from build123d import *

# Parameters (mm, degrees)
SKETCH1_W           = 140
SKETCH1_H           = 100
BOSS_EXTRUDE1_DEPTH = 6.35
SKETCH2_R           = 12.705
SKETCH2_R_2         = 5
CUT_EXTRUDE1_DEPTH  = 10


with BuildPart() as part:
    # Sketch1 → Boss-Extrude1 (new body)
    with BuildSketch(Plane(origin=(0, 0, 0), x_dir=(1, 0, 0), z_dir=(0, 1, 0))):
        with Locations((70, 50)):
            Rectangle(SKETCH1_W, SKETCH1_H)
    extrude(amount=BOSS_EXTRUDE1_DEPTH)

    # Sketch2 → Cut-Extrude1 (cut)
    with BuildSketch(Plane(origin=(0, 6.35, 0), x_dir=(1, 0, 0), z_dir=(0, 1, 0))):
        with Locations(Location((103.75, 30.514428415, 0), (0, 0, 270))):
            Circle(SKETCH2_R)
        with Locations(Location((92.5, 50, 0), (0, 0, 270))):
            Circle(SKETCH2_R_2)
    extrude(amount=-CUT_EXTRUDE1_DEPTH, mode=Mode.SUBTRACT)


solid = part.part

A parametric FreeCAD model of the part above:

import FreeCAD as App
import Part
import Sketcher

V = App.Vector
Q = App.Units.Quantity

doc = App.newDocument("Part")
body = doc.addObject("PartDesign::Body", "Body")

sketch1 = doc.addObject("Sketcher::SketchObject", "Sketch")
body.addObject(sketch1)
sketch1.AttachmentSupport = (doc.XZ_Plane, [""])
sketch1.MapMode = "FlatFace"
sketch1.addGeometry([
    Part.LineSegment(V(0, -100, 0), V(0, 0, 0)),
    Part.LineSegment(V(0, 0, 0), V(140, 0, 0)),
    Part.LineSegment(V(140, 0, 0), V(140, -100, 0)),
    Part.LineSegment(V(140, -100, 0), V(0, -100, 0)),
], False)
sketch1.addConstraint([
    Sketcher.Constraint("Coincident", 0, 2, 1, 1),
    Sketcher.Constraint("Coincident", 1, 2, 2, 1),
    Sketcher.Constraint("Coincident", 2, 2, 3, 1),
    Sketcher.Constraint("Coincident", 3, 2, 0, 1),
    Sketcher.Constraint("Vertical", 0),
    Sketcher.Constraint("Horizontal", 1),
    Sketcher.Constraint("Vertical", 2),
    Sketcher.Constraint("Horizontal", 3),
    Sketcher.Constraint("Coincident", 0, 2, -1, 1),
    Sketcher.Constraint("DistanceX", 1, 1, 1, 2, Q("140 mm")),
    Sketcher.Constraint("DistanceY", 0, 1, 0, 2, Q("100 mm")),
])
pad1 = doc.addObject("PartDesign::Pad", "Pad")
body.addObject(pad1)
pad1.Profile = sketch1
pad1.Length = 6.35
pad1.Reversed = True

sketch2 = doc.addObject("Sketcher::SketchObject", "Sketch001")
body.addObject(sketch2)
sketch2.AttachmentSupport = (doc.XZ_Plane, [""])
sketch2.MapMode = "FlatFace"
sketch2.AttachmentOffset = App.Placement(V(0, 0, -6.35), App.Rotation())
sketch2.addGeometry([
    Part.Circle(V(103.75, -30.514428, 0), V(0, 0, 1), 12.705),
    Part.Circle(V(92.5, -50, 0), V(0, 0, 1), 5),
], False)
sketch2.addConstraint([
    Sketcher.Constraint("Diameter", 1, Q("10 mm")),
    Sketcher.Constraint("Diameter", 0, Q("25.41 mm")),
    Sketcher.Constraint("DistanceY", 1, 3, -1, 1, Q("50 mm")),
    Sketcher.Constraint("DistanceX", -1, 1, 1, 3, Q("92.5 mm")),
    Sketcher.Constraint("DistanceX", -1, 1, 0, 3, Q("103.75 mm")),
    Sketcher.Constraint("DistanceY", 0, 3, -1, 1, Q("30.514428 mm")),
])
pocket1 = doc.addObject("PartDesign::Pocket", "Pocket")
body.addObject(pocket1)
pocket1.Profile = sketch2
pocket1.Length = 10
pocket1.Reversed = True

doc.recompute()
